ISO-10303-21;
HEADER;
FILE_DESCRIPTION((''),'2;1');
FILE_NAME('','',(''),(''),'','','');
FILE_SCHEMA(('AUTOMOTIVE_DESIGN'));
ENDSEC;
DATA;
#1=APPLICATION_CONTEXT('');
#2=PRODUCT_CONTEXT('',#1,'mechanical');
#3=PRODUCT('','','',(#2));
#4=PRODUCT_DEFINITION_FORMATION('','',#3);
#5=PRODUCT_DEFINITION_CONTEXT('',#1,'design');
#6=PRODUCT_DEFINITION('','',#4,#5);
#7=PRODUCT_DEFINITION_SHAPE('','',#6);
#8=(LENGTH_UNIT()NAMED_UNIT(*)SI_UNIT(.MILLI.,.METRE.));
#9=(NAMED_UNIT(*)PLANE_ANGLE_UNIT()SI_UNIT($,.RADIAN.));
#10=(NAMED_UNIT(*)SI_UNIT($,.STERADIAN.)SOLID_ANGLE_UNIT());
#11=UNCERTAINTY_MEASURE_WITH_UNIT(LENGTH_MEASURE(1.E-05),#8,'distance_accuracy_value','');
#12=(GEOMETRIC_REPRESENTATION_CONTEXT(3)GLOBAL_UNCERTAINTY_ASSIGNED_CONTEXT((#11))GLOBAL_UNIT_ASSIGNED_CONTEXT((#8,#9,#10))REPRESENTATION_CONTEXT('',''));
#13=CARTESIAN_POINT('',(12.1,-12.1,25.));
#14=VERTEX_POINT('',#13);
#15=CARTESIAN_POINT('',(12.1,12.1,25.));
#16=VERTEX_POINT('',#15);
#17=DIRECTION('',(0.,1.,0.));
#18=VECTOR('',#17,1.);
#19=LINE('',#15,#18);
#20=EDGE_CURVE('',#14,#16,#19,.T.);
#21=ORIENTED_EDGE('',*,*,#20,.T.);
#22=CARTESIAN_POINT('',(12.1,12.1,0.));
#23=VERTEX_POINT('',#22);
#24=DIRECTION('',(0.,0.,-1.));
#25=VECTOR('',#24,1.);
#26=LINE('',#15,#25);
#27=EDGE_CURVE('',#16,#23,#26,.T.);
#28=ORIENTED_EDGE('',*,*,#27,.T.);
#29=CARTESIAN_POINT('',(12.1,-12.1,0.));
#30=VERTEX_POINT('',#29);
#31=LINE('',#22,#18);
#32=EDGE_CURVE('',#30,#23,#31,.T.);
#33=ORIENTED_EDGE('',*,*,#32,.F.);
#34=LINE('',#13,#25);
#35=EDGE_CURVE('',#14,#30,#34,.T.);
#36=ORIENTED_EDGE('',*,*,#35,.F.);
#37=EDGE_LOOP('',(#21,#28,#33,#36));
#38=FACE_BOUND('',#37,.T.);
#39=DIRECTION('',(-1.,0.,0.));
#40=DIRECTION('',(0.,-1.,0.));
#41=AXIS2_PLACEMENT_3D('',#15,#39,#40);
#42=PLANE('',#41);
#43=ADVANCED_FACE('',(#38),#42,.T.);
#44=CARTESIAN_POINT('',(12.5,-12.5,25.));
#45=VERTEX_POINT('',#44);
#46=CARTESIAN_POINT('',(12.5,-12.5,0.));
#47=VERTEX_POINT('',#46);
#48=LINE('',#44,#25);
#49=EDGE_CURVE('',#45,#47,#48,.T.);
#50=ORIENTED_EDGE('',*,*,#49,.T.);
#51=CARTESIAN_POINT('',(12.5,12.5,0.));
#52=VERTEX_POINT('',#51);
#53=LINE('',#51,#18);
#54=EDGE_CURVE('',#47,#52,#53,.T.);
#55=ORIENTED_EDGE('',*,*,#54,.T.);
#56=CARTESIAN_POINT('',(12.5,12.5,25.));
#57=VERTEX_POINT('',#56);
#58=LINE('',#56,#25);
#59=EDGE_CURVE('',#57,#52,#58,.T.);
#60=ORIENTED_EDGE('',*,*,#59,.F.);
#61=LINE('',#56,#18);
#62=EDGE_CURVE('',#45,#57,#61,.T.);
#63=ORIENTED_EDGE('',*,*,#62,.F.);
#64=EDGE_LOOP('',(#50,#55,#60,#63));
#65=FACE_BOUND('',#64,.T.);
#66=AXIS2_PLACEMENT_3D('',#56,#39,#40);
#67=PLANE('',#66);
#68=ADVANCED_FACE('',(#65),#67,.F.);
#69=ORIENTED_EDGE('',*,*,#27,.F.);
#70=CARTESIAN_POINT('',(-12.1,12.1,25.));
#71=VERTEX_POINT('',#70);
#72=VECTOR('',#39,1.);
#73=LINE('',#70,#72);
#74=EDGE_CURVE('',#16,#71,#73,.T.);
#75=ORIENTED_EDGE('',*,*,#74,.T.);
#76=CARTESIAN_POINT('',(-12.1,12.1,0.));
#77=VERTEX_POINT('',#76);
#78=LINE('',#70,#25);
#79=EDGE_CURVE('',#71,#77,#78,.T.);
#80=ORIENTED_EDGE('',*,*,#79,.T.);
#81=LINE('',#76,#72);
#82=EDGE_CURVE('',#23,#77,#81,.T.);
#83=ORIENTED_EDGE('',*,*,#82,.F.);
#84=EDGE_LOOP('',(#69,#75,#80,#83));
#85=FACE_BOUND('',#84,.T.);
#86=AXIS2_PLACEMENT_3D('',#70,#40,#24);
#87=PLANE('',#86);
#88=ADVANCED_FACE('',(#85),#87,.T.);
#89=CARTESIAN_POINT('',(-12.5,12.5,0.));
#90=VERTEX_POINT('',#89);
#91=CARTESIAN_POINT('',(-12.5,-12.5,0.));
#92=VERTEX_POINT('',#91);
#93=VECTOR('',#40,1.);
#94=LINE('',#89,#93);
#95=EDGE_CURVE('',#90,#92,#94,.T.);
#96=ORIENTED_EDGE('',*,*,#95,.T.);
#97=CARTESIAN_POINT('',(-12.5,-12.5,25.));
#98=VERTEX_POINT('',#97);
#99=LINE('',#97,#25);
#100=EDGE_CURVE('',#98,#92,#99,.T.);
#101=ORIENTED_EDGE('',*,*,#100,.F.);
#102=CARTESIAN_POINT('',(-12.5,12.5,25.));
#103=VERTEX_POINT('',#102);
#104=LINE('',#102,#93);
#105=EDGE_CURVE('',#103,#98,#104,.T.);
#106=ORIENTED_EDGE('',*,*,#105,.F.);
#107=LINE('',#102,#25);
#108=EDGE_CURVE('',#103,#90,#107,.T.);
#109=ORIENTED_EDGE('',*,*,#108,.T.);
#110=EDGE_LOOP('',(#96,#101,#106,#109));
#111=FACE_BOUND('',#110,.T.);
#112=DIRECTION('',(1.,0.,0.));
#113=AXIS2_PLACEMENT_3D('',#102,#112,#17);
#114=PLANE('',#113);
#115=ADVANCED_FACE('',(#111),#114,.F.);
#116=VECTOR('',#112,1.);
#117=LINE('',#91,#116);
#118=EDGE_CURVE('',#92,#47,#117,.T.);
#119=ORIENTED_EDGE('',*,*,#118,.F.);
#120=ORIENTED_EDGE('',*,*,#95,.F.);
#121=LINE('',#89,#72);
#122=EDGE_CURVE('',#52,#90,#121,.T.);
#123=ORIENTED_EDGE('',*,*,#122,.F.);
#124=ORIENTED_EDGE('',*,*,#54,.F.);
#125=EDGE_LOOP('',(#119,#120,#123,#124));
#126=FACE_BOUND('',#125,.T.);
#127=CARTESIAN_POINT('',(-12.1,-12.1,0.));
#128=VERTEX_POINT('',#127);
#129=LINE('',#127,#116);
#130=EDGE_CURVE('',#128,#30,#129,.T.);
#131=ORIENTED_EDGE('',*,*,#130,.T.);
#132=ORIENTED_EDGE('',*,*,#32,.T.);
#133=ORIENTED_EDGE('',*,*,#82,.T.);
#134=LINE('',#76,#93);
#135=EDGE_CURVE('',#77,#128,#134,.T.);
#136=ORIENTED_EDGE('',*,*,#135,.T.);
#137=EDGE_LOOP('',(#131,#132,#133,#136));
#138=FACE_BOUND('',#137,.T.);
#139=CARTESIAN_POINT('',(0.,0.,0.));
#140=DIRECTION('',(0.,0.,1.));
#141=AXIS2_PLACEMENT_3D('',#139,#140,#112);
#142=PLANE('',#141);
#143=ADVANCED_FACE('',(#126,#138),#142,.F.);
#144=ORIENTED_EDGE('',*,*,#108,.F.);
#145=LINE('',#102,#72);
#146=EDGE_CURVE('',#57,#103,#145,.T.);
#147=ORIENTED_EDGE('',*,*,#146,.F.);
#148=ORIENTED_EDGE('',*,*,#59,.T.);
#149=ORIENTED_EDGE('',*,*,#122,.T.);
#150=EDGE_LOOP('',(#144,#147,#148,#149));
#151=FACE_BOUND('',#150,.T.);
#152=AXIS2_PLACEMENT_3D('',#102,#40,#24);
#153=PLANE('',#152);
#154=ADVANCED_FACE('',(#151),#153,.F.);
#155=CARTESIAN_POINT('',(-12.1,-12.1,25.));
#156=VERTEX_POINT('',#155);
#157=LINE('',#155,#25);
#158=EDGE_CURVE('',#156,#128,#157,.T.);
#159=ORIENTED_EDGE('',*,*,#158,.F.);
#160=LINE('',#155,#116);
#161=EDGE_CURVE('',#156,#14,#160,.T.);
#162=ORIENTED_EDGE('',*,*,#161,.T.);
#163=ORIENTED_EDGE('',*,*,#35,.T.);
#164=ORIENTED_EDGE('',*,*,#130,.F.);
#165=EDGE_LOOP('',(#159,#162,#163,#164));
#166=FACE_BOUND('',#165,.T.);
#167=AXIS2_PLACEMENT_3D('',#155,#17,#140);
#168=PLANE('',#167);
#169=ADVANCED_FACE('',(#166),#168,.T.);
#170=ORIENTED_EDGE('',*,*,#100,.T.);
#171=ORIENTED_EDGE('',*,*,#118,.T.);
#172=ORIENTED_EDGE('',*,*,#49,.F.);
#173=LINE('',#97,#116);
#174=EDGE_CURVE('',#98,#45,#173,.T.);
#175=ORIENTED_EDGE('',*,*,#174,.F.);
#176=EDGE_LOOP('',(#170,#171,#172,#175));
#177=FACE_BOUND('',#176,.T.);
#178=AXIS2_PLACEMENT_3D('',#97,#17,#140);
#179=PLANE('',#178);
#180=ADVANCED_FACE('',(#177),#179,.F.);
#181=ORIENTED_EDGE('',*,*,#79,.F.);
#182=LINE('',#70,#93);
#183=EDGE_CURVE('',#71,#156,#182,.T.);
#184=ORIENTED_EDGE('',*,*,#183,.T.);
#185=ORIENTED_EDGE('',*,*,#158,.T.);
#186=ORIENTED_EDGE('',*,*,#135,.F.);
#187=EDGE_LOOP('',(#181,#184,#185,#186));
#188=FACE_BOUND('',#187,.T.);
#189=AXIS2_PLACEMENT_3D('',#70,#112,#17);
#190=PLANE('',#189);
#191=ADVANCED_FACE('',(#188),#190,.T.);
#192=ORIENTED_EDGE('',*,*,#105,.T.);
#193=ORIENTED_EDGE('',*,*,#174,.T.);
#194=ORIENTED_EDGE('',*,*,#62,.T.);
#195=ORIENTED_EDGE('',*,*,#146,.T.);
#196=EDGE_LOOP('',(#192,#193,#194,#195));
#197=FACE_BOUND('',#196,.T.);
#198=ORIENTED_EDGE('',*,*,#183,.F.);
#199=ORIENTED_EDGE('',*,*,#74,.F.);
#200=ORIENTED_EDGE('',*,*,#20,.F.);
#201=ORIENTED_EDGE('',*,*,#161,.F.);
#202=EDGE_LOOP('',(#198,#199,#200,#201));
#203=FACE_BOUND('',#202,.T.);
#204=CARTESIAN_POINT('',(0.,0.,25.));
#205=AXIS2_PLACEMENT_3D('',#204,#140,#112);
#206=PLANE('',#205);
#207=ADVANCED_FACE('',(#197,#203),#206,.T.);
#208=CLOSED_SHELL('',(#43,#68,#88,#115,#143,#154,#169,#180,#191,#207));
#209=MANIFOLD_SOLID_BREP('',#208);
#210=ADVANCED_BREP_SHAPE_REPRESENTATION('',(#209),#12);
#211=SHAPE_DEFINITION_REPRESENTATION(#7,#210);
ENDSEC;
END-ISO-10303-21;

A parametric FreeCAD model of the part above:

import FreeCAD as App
import Part
import Sketcher

V = App.Vector


def add_polygon(sketch, points):
    """Adds a closed chain of lines whose ends are joined by coincident constraints."""
    first, n = sketch.GeometryCount, len(points)
    for a, b in zip(points, points[1:] + points[:1]):
        sketch.addGeometry(Part.LineSegment(App.Vector(*a, 0), App.Vector(*b, 0)), False)
    for i in range(n):
        sketch.addConstraint(Sketcher.Constraint("Coincident", first + i, 2, first + (i + 1) % n, 1))

doc = App.newDocument("Part")
body = doc.addObject("PartDesign::Body", "Body")

# Sketch on XY plane
sketch1 = body.newObject("Sketcher::SketchObject", "Sketch")
sketch1.AttachmentSupport = (doc.getObject("XY_Plane"), [""])
sketch1.MapMode = "FlatFace"
add_polygon(sketch1, [(-12, 12), (-12, -12), (12, -12), (12, 12)])  # lines 0-3
add_polygon(sketch1, [(12, -12), (-12, -12), (-12, 12), (12, 12)])  # lines 4-7
sketch1.addConstraint([
    Sketcher.Constraint("Vertical", 0),
    Sketcher.Constraint("Horizontal", 1),
    Sketcher.Constraint("Vertical", 2),
    Sketcher.Constraint("Horizontal", 3),
    Sketcher.Constraint("Horizontal", 4),
    Sketcher.Constraint("Vertical", 5),
    Sketcher.Constraint("Horizontal", 6),
    Sketcher.Constraint("Vertical", 7),
    Sketcher.Constraint("Symmetric", 0, 2, 2, 2, -1, 1),
    Sketcher.Constraint("Symmetric", 4, 2, 6, 2, -1, 1),
    Sketcher.Constraint("Equal", 3, 0),
    Sketcher.Constraint("Equal", 6, 5),
    Sketcher.Constraint("DistanceX", 1, 1, 1, 2, 25.0),
    Sketcher.Constraint("DistanceX", 4, 2, 4, 1, 24.2),
])
pad1 = body.newObject("PartDesign::Pad", "Pad")
pad1.Profile = sketch1
pad1.Length = 25

doc.recompute()
